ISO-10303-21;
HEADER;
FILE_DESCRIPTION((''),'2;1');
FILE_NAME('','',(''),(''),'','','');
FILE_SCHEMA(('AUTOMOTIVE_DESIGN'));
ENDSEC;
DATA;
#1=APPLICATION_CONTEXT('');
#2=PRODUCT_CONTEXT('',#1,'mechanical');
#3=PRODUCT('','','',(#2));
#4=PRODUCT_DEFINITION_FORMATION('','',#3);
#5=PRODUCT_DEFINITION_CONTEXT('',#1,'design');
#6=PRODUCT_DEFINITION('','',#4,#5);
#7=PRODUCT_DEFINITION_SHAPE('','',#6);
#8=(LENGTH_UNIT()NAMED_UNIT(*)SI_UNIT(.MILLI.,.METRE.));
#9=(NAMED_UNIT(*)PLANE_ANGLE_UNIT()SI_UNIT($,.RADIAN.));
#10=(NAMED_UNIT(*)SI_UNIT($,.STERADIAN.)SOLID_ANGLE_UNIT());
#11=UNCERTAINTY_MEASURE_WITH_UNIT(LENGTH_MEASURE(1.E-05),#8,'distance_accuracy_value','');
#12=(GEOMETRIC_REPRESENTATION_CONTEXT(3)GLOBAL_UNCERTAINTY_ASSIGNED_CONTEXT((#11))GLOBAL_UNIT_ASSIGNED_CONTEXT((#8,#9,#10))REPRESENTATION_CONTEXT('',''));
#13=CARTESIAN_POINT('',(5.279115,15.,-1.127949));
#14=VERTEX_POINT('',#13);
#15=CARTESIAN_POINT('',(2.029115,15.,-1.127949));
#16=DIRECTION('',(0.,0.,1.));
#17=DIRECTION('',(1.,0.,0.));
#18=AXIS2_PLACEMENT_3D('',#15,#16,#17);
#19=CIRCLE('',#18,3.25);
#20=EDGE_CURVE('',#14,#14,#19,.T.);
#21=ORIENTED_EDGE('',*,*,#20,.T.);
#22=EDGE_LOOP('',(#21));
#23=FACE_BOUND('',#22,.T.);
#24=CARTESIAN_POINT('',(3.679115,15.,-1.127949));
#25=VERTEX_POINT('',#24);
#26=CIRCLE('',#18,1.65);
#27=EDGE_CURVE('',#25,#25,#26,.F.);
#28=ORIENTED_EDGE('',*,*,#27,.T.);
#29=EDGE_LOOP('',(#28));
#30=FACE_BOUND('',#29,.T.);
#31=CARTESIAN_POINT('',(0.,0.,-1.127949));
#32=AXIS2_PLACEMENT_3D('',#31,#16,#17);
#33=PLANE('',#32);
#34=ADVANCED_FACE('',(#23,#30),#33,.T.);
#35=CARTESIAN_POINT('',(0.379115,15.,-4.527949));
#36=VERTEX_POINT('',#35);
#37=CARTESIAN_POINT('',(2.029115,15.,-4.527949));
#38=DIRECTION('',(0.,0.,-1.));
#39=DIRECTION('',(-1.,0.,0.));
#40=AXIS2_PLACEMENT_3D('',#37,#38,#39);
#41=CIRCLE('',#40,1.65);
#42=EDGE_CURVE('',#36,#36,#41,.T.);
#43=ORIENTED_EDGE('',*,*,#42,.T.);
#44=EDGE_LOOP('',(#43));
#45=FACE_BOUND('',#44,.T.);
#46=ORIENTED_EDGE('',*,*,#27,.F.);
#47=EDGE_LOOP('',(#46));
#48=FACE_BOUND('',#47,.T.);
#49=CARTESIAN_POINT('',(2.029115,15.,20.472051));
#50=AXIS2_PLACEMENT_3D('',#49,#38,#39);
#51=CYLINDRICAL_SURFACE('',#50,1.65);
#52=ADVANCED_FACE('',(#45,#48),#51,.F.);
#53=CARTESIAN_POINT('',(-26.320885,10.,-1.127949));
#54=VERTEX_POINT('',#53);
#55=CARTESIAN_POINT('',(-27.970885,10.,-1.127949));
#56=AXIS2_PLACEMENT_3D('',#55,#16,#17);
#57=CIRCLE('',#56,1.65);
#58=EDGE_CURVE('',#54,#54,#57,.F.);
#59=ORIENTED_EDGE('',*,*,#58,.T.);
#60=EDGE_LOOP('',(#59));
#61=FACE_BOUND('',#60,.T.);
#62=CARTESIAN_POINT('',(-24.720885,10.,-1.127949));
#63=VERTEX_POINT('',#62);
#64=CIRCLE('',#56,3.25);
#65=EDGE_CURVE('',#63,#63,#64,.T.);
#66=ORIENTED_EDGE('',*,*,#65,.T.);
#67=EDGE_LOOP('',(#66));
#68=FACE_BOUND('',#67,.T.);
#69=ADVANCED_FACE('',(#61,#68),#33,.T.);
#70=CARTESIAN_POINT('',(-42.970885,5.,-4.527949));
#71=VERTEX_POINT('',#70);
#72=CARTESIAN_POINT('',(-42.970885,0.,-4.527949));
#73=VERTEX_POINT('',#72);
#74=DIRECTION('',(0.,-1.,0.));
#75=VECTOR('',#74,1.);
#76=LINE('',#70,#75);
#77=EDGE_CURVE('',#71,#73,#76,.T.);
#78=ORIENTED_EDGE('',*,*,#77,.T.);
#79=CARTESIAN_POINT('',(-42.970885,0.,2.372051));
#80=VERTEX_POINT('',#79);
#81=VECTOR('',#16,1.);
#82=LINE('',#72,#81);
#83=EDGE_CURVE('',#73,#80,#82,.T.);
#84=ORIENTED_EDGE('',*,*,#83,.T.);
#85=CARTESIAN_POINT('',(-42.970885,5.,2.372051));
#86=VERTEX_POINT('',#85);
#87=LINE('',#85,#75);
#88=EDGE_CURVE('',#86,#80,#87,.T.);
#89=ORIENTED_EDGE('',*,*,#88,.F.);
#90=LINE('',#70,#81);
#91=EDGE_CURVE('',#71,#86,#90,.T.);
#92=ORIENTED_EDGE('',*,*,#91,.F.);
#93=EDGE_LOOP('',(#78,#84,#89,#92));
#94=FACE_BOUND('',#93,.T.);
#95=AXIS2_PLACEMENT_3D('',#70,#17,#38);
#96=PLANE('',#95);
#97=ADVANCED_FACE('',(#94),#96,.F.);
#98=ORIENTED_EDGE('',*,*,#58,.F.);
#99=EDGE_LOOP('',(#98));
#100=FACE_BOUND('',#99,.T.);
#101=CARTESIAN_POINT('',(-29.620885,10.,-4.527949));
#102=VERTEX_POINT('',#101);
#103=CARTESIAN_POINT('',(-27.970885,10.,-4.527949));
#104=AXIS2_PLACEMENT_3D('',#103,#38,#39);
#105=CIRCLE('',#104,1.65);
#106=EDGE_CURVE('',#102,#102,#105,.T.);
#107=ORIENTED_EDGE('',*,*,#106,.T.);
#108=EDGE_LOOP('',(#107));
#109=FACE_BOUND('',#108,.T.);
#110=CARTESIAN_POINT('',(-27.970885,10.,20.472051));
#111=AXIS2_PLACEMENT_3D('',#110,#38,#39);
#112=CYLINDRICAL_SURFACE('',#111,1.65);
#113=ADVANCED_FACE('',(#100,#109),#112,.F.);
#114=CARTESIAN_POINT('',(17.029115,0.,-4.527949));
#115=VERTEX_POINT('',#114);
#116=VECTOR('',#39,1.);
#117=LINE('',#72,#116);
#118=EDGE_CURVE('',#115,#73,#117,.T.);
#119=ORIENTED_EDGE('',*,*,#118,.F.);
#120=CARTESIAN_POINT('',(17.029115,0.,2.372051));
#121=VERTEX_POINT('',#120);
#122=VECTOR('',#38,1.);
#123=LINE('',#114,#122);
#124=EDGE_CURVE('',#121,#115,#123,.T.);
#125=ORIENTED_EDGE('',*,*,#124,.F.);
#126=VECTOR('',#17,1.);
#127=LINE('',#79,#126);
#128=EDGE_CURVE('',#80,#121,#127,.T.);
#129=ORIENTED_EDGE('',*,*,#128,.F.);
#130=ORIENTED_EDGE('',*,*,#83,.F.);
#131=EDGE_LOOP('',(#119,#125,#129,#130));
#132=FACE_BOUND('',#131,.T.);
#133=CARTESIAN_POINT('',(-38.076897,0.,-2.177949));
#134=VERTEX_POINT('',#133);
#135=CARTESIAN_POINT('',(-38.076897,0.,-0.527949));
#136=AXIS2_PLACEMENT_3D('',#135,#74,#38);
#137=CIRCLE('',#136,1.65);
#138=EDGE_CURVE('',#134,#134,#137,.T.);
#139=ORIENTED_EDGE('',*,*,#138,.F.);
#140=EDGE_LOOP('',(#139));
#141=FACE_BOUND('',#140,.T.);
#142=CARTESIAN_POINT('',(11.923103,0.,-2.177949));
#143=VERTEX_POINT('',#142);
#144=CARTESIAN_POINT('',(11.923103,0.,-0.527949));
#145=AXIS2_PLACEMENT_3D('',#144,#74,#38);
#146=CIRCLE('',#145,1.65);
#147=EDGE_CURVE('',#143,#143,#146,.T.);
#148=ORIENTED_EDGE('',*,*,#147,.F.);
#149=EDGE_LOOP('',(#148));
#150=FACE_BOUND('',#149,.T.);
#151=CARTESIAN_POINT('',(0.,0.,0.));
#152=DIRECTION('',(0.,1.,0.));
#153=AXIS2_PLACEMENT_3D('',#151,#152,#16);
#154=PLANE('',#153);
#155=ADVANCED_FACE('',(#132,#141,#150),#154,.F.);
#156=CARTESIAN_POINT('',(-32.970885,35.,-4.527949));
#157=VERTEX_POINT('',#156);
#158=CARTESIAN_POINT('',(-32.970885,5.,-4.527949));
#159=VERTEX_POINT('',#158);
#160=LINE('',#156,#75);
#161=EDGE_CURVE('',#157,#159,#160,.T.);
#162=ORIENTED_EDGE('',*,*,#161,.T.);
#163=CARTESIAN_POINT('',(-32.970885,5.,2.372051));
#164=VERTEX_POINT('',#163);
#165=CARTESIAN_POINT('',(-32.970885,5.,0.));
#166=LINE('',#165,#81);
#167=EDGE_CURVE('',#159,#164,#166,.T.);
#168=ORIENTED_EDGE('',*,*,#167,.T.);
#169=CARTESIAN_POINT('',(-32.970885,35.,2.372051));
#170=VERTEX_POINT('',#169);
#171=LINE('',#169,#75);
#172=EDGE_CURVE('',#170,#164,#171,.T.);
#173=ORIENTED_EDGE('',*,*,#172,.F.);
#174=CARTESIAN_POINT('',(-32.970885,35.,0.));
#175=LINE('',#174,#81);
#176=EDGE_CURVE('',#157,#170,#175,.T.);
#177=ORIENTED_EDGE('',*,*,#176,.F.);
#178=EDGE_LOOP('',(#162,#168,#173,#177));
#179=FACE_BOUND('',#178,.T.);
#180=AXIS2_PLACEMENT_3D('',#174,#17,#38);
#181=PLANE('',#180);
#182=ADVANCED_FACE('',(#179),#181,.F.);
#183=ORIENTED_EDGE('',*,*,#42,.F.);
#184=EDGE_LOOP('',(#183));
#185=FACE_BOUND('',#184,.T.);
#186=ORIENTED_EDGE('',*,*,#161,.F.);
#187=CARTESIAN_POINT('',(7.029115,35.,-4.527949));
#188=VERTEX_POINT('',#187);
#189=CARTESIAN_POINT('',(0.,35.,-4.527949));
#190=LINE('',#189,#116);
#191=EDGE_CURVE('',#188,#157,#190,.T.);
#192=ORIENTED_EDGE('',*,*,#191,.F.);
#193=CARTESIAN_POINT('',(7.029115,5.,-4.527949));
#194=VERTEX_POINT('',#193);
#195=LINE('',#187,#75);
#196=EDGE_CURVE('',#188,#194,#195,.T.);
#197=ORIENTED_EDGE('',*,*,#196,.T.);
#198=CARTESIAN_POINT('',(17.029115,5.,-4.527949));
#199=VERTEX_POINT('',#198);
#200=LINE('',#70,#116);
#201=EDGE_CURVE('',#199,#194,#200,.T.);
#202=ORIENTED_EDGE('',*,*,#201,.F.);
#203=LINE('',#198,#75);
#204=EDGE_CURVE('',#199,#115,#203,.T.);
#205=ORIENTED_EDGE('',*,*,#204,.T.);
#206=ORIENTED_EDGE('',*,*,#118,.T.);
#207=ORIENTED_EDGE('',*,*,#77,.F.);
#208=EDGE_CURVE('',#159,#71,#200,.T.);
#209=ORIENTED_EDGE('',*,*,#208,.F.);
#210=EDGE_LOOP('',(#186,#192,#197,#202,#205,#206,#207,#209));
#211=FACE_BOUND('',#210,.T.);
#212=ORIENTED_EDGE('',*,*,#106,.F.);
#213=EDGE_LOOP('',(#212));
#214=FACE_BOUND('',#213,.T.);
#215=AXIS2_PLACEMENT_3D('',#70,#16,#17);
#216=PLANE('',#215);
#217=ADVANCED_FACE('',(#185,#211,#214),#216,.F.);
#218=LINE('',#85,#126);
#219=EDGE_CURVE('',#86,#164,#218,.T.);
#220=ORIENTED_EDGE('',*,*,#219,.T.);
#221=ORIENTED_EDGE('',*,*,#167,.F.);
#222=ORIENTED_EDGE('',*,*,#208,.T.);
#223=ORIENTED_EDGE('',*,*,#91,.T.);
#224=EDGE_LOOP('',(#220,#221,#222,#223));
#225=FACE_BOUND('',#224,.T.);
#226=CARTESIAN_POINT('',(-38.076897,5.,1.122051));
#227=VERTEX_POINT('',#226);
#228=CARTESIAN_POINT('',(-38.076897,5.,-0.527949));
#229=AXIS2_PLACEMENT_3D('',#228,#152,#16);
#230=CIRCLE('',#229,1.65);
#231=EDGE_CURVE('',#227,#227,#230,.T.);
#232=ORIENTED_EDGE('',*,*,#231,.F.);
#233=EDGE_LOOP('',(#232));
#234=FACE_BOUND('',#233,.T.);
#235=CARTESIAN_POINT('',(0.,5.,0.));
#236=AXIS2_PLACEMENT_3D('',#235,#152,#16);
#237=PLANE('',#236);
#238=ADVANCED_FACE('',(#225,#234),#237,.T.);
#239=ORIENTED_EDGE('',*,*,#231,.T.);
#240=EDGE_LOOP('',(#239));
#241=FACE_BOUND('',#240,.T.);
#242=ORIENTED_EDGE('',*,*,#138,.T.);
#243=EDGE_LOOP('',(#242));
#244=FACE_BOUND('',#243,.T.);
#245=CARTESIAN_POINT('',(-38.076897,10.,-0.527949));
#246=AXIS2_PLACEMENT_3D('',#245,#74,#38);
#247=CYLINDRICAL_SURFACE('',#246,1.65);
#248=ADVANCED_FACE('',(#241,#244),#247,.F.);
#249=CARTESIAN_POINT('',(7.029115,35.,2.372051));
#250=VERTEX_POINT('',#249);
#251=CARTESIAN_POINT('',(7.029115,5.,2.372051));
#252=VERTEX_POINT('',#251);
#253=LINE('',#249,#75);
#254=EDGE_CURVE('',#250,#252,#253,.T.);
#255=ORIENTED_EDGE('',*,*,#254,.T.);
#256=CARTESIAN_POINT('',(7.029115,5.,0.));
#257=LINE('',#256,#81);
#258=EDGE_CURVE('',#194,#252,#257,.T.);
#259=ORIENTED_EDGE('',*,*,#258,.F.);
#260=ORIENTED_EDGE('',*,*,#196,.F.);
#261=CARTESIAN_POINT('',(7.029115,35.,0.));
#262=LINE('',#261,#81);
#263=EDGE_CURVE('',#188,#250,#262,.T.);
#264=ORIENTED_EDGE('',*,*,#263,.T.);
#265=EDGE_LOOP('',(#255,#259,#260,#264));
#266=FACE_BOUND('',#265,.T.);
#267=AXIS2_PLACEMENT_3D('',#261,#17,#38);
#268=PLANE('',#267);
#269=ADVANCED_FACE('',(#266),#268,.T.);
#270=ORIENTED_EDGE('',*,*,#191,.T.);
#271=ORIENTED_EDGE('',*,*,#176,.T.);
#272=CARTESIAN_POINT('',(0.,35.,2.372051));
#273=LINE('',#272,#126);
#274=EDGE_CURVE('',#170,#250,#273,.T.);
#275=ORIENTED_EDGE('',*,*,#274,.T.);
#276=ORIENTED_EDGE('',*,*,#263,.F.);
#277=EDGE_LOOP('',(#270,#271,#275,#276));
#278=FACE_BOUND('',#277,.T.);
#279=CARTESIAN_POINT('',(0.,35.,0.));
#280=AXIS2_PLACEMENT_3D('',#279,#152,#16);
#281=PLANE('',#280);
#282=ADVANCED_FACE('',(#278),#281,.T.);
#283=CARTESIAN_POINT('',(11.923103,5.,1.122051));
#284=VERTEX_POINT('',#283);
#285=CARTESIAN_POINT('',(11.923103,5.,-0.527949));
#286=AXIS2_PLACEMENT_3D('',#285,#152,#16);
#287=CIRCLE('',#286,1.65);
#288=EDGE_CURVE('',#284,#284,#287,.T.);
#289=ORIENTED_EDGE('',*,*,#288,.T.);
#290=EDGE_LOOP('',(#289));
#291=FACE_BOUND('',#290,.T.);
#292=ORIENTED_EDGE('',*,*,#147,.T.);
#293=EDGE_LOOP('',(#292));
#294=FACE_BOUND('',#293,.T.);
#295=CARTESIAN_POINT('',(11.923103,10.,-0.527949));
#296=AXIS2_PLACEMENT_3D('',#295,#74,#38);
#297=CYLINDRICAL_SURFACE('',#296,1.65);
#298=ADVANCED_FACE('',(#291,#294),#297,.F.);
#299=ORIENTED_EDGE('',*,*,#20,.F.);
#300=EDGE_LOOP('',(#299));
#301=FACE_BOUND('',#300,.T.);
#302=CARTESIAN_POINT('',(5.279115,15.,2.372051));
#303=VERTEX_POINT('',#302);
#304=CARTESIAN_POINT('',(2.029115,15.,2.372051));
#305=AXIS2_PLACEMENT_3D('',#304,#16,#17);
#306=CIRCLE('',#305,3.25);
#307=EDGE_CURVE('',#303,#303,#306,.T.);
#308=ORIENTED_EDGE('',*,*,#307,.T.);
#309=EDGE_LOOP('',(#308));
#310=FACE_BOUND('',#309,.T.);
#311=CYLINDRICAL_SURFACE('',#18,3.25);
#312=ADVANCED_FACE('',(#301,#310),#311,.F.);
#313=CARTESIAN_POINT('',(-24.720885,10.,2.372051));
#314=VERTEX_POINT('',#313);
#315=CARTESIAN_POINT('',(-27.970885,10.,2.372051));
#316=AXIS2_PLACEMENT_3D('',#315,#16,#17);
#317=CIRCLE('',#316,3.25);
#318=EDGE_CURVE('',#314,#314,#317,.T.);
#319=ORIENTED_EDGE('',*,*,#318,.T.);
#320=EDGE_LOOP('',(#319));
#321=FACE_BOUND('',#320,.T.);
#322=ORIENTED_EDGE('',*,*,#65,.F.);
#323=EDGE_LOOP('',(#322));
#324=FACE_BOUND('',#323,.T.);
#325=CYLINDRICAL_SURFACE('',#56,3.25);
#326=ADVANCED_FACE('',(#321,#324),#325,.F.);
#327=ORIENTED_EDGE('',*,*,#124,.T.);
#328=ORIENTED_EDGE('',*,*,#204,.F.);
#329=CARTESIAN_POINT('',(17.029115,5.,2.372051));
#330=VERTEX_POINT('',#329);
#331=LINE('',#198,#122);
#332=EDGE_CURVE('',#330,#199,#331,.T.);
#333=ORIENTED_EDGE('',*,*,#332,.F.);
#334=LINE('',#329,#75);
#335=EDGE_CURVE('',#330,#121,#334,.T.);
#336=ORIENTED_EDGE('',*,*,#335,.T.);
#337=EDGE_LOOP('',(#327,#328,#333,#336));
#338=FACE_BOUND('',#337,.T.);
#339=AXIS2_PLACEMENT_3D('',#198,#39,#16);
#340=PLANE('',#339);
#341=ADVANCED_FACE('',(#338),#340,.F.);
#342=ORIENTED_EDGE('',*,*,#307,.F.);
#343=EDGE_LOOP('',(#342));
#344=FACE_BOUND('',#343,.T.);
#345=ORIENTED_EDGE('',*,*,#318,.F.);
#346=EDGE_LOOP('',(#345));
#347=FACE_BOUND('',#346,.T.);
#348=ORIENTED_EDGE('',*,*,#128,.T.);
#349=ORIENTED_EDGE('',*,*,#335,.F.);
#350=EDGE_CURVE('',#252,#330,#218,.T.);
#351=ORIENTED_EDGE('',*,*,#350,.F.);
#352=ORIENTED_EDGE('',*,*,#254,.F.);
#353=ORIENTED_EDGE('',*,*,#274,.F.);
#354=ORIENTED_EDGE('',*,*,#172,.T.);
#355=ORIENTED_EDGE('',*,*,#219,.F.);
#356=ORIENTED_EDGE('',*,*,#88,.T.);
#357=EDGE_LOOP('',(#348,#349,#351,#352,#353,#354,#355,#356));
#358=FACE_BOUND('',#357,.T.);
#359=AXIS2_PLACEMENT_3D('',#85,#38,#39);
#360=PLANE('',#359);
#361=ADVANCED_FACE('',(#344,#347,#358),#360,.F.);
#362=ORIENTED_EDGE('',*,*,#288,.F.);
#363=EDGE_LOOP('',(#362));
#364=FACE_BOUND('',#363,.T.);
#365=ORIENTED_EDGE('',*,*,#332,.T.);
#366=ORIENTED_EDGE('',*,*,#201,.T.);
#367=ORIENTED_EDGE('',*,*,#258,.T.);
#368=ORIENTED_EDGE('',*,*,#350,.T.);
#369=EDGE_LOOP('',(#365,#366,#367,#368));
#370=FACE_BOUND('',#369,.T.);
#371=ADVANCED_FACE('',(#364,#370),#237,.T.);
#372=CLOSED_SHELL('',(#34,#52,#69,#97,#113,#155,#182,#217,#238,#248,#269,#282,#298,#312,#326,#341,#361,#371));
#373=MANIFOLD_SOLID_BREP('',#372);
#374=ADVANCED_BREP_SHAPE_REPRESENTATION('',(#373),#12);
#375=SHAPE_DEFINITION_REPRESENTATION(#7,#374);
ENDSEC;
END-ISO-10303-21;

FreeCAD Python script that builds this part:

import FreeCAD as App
import Part
import Sketcher
from FreeCAD import Vector
Q = App.Units.Quantity

doc = App.newDocument("Part")
params = doc.addObject("Spreadsheet::Sheet", "Params")
for row, (alias, value) in enumerate([
    ("sketch1_width", "60 mm"),
    ("sketch1_height", "6.9 mm"),
    ("pad1_length", "5 mm"),
    ("sketch2_diameter", "3.3 mm"),
    ("pocket1_length", "10 mm"),
    ("sketch3_width", "40 mm"),
    ("sketch3_height", "6.9 mm"),
    ("pad2_length", "30 mm"),
    ("sketch4_diameter", "3.3 mm"),
    ("pocket2_length", "25 mm"),
    ("sketch5_diameter", "6.5 mm"),
    ("sketch5_diameter2", "3.3 mm"),
    ("pocket3_length", "3.5 mm"),
], start=1):
    params.set(f"A{row}", alias)
    params.set(f"B{row}", "=" + value)
    params.setAlias(f"B{row}", alias)

body = doc.addObject("PartDesign::Body", "Body")

# Sketch on XZ plane
sketch1 = body.newObject("Sketcher::SketchObject", "Sketch")
sketch1.AttachmentSupport = (doc.getObject("XZ_Plane"), [""])
sketch1.MapMode = "FlatFace"
sketch1.addGeometry([
    Part.LineSegment(Vector(-43, -5, 0), Vector(-43, 2, 0)),
    Part.LineSegment(Vector(-43, 2, 0), Vector(17, 2, 0)),
    Part.LineSegment(Vector(17, 2, 0), Vector(17, -5, 0)),
    Part.LineSegment(Vector(17, -5, 0), Vector(-43, -5, 0)),
], False)
sketch1.addConstraint([
    Sketcher.Constraint("Coincident", 0, 2, 1, 1),
    Sketcher.Constraint("Coincident", 1, 2, 2, 1),
    Sketcher.Constraint("Coincident", 2, 2, 3, 1),
    Sketcher.Constraint("Coincident", 3, 2, 0, 1),
    Sketcher.Constraint("Vertical", 0),
    Sketcher.Constraint("Horizontal", 1),
    Sketcher.Constraint("Vertical", 2),
    Sketcher.Constraint("Horizontal", 3),
    Sketcher.Constraint("DistanceX", 1, 1, 1, 2, Q("60 mm")),
    Sketcher.Constraint("DistanceY", 0, 1, 0, 2, Q("6.9 mm")),
    Sketcher.Constraint("DistanceY", -1, 1, 0, 2, Q("2.372051 mm")),
    Sketcher.Constraint("DistanceX", 0, 2, -1, 1, Q("42.970885 mm")),
])
sketch1.setExpression("Constraints[8]", "Params.sketch1_width")
sketch1.setExpression("Constraints[9]", "Params.sketch1_height")
pad1 = body.newObject("PartDesign::Pad", "Pad")
pad1.Profile = sketch1
pad1.setExpression("Length", "Params.pad1_length")
pad1.Reversed = True

# Sketch on XZ plane
sketch2 = body.newObject("Sketcher::SketchObject", "Sketch001")
sketch2.AttachmentSupport = (doc.getObject("XZ_Plane"), [""])
sketch2.MapMode = "FlatFace"
sketch2.addGeometry([
    Part.Circle(Vector(11.9, -0.5, 0), Vector(0, 0, 1), 1.6),
    Part.Circle(Vector(-38.1, -0.5, 0), Vector(0, 0, 1), 1.6),
], False)
sketch2.addConstraint([
    Sketcher.Constraint("Equal", 0, 1),
    Sketcher.Constraint("Horizontal", 0, 3, 1, 3),
    Sketcher.Constraint("Diameter", 0, Q("3.3 mm")),
    Sketcher.Constraint("DistanceX", 1, 3, 0, 3, Q("50 mm")),
    Sketcher.Constraint("DistanceY", 0, 3, -1, 1, Q("0.527949 mm")),
    Sketcher.Constraint("DistanceX", -1, 1, 0, 3, Q("11.923103 mm")),
])
sketch2.setExpression("Constraints[2]", "Params.sketch2_diameter")
pocket1 = body.newObject("PartDesign::Pocket", "Pocket")
pocket1.Profile = sketch2
pocket1.setExpression("Length", "Params.pocket1_length")

# Sketch on XZ plane
sketch3 = body.newObject("Sketcher::SketchObject", "Sketch002")
sketch3.AttachmentSupport = (doc.getObject("XZ_Plane"), [""])
sketch3.MapMode = "FlatFace"
sketch3.AttachmentOffset = App.Placement(Vector(0, 0, -5), App.Rotation())
sketch3.addGeometry([
    Part.LineSegment(Vector(-33, -5, 0), Vector(-33, 2, 0)),
    Part.LineSegment(Vector(-33, 2, 0), Vector(7, 2, 0)),
    Part.LineSegment(Vector(7, 2, 0), Vector(7, -5, 0)),
    Part.LineSegment(Vector(7, -5, 0), Vector(-33, -5, 0)),
], False)
sketch3.addConstraint([
    Sketcher.Constraint("Coincident", 0, 2, 1, 1),
    Sketcher.Constraint("Coincident", 1, 2, 2, 1),
    Sketcher.Constraint("Coincident", 2, 2, 3, 1),
    Sketcher.Constraint("Coincident", 3, 2, 0, 1),
    Sketcher.Constraint("Vertical", 0),
    Sketcher.Constraint("Horizontal", 1),
    Sketcher.Constraint("Vertical", 2),
    Sketcher.Constraint("Horizontal", 3),
    Sketcher.Constraint("DistanceX", 1, 1, 1, 2, Q("40 mm")),
    Sketcher.Constraint("DistanceY", 0, 1, 0, 2, Q("6.9 mm")),
    Sketcher.Constraint("DistanceY", -1, 1, 0, 2, Q("2.372051 mm")),
    Sketcher.Constraint("DistanceX", 0, 2, -1, 1, Q("32.970885 mm")),
])
sketch3.setExpression("Constraints[8]", "Params.sketch3_width")
sketch3.setExpression("Constraints[9]", "Params.sketch3_height")
pad2 = body.newObject("PartDesign::Pad", "Pad001")
pad2.Profile = sketch3
pad2.setExpression("Length", "Params.pad2_length")
pad2.Reversed = True

# Sketch on XY plane
sketch4 = body.newObject("Sketcher::SketchObject", "Sketch003")
sketch4.AttachmentSupport = (doc.getObject("XY_Plane"), [""])
sketch4.MapMode = "FlatFace"
sketch4.AttachmentOffset = App.Placement(Vector(0, 0, -4.527949), App.Rotation())
sketch4.addGeometry([
    Part.Circle(Vector(-28, 10, 0), Vector(0, 0, 1), 1.6),
    Part.Circle(Vector(2, 15, 0), Vector(0, 0, 1), 1.6),
], False)
sketch4.addConstraint([
    Sketcher.Constraint("Equal", 0, 1),
    Sketcher.Constraint("Diameter", 0, Q("3.3 mm")),
    Sketcher.Constraint("DistanceY", -1, 1, 0, 3, Q("10 mm")),
    Sketcher.Constraint("DistanceY", -1, 1, 1, 3, Q("15 mm")),
    Sketcher.Constraint("DistanceX", 0, 3, 1, 3, Q("30 mm")),
    Sketcher.Constraint("DistanceX", 0, 3, -1, 1, Q("27.970885 mm")),
])
sketch4.setExpression("Constraints[1]", "Params.sketch4_diameter")
pocket2 = body.newObject("PartDesign::Pocket", "Pocket001")
pocket2.Profile = sketch4
pocket2.setExpression("Length", "Params.pocket2_length")
pocket2.Reversed = True

# Sketch on XY plane
sketch5 = body.newObject("Sketcher::SketchObject", "Sketch004")
sketch5.AttachmentSupport = (doc.getObject("XY_Plane"), [""])
sketch5.MapMode = "FlatFace"
sketch5.AttachmentOffset = App.Placement(Vector(0, 0, -1.127949), App.Rotation())
sketch5.addGeometry([
    Part.Circle(Vector(-28, 10, 0), Vector(0, 0, 1), 3.2),
    Part.Circle(Vector(-28, 10, 0), Vector(0, 0, 1), 1.6),
    Part.Circle(Vector(2, 15, 0), Vector(0, 0, 1), 3.2),
    Part.Circle(Vector(2, 15, 0), Vector(0, 0, 1), 1.6),
], False)
sketch5.addConstraint([
    Sketcher.Constraint("Coincident", 1, 3, 0, 3),
    Sketcher.Constraint("Coincident", 3, 3, 2, 3),
    Sketcher.Constraint("Equal", 0, 2),
    Sketcher.Constraint("Equal", 1, 3),
    Sketcher.Constraint("Diameter", 0, Q("6.5 mm")),
    Sketcher.Constraint("Diameter", 1, Q("3.3 mm")),
    Sketcher.Constraint("DistanceY", -1, 1, 0, 3, Q("10 mm")),
    Sketcher.Constraint("DistanceY", -1, 1, 2, 3, Q("15 mm")),
    Sketcher.Constraint("DistanceX", 0, 3, 2, 3, Q("30 mm")),
    Sketcher.Constraint("DistanceX", 0, 3, -1, 1, Q("27.970885 mm")),
])
sketch5.setExpression("Constraints[4]", "Params.sketch5_diameter")
sketch5.setExpression("Constraints[5]", "Params.sketch5_diameter2")
pocket3 = body.newObject("PartDesign::Pocket", "Pocket002")
pocket3.Profile = sketch5
pocket3.setExpression("Length", "Params.pocket3_length")
pocket3.Reversed = True

doc.recompute()
